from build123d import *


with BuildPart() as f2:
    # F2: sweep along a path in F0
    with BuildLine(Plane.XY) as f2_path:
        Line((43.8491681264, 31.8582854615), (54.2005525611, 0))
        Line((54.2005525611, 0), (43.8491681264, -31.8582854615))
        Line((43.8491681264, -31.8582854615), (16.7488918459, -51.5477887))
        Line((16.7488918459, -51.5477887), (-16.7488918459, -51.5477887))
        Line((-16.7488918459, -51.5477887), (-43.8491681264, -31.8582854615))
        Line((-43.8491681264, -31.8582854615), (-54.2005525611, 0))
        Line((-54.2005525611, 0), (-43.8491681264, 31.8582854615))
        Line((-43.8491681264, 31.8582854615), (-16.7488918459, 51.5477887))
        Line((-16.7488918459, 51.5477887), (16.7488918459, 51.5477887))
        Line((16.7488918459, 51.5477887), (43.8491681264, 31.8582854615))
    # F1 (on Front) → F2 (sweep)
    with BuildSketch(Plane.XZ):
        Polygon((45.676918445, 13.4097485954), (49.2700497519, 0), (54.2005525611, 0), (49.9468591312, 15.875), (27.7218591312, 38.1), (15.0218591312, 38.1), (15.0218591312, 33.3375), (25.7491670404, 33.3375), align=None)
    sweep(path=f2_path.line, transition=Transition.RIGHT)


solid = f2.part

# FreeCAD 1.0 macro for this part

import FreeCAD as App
import Part
import Sketcher

V = App.Vector
Q = App.Units.Quantity


def add_polygon(sketch, points):
    """Adds a closed chain of lines whose ends are joined by coincident constraints."""
    first, n = sketch.GeometryCount, len(points)
    for a, b in zip(points, points[1:] + points[:1]):
        sketch.addGeometry(Part.LineSegment(App.Vector(*a, 0), App.Vector(*b, 0)), False)
    for i in range(n):
        sketch.addConstraint(Sketcher.Constraint("Coincident", first + i, 2, first + (i + 1) % n, 1))

doc = App.newDocument("Part")
body = doc.addObject("PartDesign::Body", "Body")

sketch1 = body.newObject("Sketcher::SketchObject", "Sketch")
sketch1.AttachmentSupport = (doc.getObject("XZ_Plane"), [""])
sketch1.MapMode = "FlatFace"
add_polygon(sketch1, [(45.676918, 13.409749), (49.27005, 0), (54.200553, 0), (49.946859, 15.875), (27.721859, 38.1), (15.021859, 38.1), (15.021859, 33.3375), (25.749167, 33.3375)])
sketch1.addConstraint([
    Sketcher.Constraint("Horizontal", 1),
    Sketcher.Constraint("Horizontal", 4),
    Sketcher.Constraint("Vertical", 5),
    Sketcher.Constraint("Horizontal", 6),
    Sketcher.Constraint("PointOnObject", 0, 2, -1),
    Sketcher.Constraint("Parallel", 0, 2),
    Sketcher.Constraint("Parallel", 3, 7),
    Sketcher.Constraint("DistanceX", 4, 2, 4, 1, Q("0.5 in")),
    Sketcher.Constraint("Angle", 0, Q("-75 deg")),
    Sketcher.Constraint("Angle", 3, Q("135 deg")),
    Sketcher.Constraint("DistanceY", -1, 1, 3, 2, Q("1.5 in")),
    Sketcher.Constraint("DistanceY", 5, 2, 5, 1, Q("0.1875 in")),
    Sketcher.Constraint("DistanceY", -1, 1, 2, 2, Q("0.625 in")),
    Sketcher.Constraint("DistanceX", 1, 1, 1, 2, 4.930503),
    Sketcher.Constraint("DistanceX", 6, 1, 6, 2, 10.727308),
    Sketcher.Constraint("DistanceX", -1, 1, 0, 2, 49.27005),
])

sketch2 = body.newObject("Sketcher::SketchObject", "Sketch001")
sketch2.AttachmentSupport = (doc.getObject("XY_Plane"), [""])
sketch2.MapMode = "FlatFace"
add_polygon(sketch2, [(43.849168, 31.858285), (54.200553, 0), (43.849168, -31.858285), (16.748892, -51.547789), (-16.748892, -51.547789), (-43.849168, -31.858285), (-54.200553, 0), (-43.849168, 31.858285), (-16.748892, 51.547789), (16.748892, 51.547789)])
sketch2.addConstraint([
    Sketcher.Constraint("Horizontal", 3),
    Sketcher.Constraint("Horizontal", 8),
    Sketcher.Constraint("Symmetric", 0, 2, 5, 2, -1, 1),
    Sketcher.Constraint("Symmetric", 1, 2, 6, 2, -1, 1),
    Sketcher.Constraint("Symmetric", 2, 2, 7, 2, -1, 1),
    Sketcher.Constraint("Symmetric", 4, 2, 9, 2, -1, 1),
    Sketcher.Constraint("Symmetric", 1, 2, 4, 2, -2),
    Sketcher.Constraint("PointOnObject", 0, 2, -1),
    Sketcher.Constraint("Parallel", 4, 9),
    Sketcher.Constraint("Vertical", 3, 2, 7, 2),
    Sketcher.Constraint("Equal", 1, 2),
    Sketcher.Constraint("Angle", 0, Q("-72 deg")),
    Sketcher.Constraint("Angle", 2, Q("-144 deg")),
    Sketcher.Constraint("DistanceX", 3, 2, 3, 1, 33.497784),
    Sketcher.Constraint("DistanceX", -1, 1, 1, 2, 43.849168),
])
doc.recompute()

additivepipe = body.newObject("PartDesign::AdditivePipe", "AdditivePipe")
additivepipe.Profile = sketch1
additivepipe.Spine = (sketch2, ["Edge1", "Edge2", "Edge3", "Edge4", "Edge5", "Edge6", "Edge7", "Edge8", "Edge9", "Edge10"])
additivepipe.Transition = "Right corner"

doc.recompute()
